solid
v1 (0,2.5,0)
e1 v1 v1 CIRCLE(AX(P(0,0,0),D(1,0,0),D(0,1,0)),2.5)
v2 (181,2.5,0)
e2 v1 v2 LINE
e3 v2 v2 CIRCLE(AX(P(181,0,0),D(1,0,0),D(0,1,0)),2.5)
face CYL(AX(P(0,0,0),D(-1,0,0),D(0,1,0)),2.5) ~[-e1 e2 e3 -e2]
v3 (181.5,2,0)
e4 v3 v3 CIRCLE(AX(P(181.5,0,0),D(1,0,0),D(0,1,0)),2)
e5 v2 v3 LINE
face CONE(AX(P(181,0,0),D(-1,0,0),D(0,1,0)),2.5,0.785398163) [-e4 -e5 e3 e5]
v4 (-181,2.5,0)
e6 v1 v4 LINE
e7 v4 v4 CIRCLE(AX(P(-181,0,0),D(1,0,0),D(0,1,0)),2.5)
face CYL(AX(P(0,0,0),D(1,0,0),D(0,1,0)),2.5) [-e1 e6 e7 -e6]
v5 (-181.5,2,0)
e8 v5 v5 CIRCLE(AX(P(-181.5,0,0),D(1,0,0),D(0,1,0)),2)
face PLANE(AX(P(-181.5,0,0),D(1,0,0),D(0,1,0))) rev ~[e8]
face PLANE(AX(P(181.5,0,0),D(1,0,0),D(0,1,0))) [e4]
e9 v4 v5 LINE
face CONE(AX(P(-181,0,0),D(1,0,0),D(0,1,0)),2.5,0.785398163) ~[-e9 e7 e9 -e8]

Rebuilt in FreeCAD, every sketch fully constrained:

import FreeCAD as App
import Part
import Sketcher
from FreeCAD import Vector
Q = App.Units.Quantity


def edges_at(feature, points):
    """Names of the edges that pass closest to the given points."""
    edges = feature.Shape.Edges
    near = lambda p: min(range(len(edges)), key=lambda i: edges[i].distToShape(Part.Vertex(*p))[0])
    return sorted({f"Edge{near(p) + 1}" for p in points})

doc = App.newDocument("Part")
body = doc.addObject("PartDesign::Body", "Body")

sketch1 = doc.addObject("Sketcher::SketchObject", "Sketch")
body.addObject(sketch1)
sketch1.AttachmentSupport = (doc.YZ_Plane, [""])
sketch1.MapMode = "FlatFace"
sketch1.addGeometry(Part.Circle(Vector(0, 0, 0), Vector(0, 0, 1), 2.5), False)
sketch1.addConstraint(Sketcher.Constraint("Coincident", 0, 3, -1, 1))
sketch1.addConstraint(Sketcher.Constraint("Diameter", 0, Q("5 mm")))
pad1 = doc.addObject("PartDesign::Pad", "Pad")
body.addObject(pad1)
pad1.Profile = sketch1
pad1.Length = 363
pad1.Midplane = True
doc.recompute()

chamfer = doc.addObject("PartDesign::Chamfer", "Chamfer")
body.addObject(chamfer)
chamfer.Base = (pad1, edges_at(pad1, [(181.5, -2.5, 0), (-181.5, -2.5, 0)]))
chamfer.Size = 0.5

doc.recompute()
